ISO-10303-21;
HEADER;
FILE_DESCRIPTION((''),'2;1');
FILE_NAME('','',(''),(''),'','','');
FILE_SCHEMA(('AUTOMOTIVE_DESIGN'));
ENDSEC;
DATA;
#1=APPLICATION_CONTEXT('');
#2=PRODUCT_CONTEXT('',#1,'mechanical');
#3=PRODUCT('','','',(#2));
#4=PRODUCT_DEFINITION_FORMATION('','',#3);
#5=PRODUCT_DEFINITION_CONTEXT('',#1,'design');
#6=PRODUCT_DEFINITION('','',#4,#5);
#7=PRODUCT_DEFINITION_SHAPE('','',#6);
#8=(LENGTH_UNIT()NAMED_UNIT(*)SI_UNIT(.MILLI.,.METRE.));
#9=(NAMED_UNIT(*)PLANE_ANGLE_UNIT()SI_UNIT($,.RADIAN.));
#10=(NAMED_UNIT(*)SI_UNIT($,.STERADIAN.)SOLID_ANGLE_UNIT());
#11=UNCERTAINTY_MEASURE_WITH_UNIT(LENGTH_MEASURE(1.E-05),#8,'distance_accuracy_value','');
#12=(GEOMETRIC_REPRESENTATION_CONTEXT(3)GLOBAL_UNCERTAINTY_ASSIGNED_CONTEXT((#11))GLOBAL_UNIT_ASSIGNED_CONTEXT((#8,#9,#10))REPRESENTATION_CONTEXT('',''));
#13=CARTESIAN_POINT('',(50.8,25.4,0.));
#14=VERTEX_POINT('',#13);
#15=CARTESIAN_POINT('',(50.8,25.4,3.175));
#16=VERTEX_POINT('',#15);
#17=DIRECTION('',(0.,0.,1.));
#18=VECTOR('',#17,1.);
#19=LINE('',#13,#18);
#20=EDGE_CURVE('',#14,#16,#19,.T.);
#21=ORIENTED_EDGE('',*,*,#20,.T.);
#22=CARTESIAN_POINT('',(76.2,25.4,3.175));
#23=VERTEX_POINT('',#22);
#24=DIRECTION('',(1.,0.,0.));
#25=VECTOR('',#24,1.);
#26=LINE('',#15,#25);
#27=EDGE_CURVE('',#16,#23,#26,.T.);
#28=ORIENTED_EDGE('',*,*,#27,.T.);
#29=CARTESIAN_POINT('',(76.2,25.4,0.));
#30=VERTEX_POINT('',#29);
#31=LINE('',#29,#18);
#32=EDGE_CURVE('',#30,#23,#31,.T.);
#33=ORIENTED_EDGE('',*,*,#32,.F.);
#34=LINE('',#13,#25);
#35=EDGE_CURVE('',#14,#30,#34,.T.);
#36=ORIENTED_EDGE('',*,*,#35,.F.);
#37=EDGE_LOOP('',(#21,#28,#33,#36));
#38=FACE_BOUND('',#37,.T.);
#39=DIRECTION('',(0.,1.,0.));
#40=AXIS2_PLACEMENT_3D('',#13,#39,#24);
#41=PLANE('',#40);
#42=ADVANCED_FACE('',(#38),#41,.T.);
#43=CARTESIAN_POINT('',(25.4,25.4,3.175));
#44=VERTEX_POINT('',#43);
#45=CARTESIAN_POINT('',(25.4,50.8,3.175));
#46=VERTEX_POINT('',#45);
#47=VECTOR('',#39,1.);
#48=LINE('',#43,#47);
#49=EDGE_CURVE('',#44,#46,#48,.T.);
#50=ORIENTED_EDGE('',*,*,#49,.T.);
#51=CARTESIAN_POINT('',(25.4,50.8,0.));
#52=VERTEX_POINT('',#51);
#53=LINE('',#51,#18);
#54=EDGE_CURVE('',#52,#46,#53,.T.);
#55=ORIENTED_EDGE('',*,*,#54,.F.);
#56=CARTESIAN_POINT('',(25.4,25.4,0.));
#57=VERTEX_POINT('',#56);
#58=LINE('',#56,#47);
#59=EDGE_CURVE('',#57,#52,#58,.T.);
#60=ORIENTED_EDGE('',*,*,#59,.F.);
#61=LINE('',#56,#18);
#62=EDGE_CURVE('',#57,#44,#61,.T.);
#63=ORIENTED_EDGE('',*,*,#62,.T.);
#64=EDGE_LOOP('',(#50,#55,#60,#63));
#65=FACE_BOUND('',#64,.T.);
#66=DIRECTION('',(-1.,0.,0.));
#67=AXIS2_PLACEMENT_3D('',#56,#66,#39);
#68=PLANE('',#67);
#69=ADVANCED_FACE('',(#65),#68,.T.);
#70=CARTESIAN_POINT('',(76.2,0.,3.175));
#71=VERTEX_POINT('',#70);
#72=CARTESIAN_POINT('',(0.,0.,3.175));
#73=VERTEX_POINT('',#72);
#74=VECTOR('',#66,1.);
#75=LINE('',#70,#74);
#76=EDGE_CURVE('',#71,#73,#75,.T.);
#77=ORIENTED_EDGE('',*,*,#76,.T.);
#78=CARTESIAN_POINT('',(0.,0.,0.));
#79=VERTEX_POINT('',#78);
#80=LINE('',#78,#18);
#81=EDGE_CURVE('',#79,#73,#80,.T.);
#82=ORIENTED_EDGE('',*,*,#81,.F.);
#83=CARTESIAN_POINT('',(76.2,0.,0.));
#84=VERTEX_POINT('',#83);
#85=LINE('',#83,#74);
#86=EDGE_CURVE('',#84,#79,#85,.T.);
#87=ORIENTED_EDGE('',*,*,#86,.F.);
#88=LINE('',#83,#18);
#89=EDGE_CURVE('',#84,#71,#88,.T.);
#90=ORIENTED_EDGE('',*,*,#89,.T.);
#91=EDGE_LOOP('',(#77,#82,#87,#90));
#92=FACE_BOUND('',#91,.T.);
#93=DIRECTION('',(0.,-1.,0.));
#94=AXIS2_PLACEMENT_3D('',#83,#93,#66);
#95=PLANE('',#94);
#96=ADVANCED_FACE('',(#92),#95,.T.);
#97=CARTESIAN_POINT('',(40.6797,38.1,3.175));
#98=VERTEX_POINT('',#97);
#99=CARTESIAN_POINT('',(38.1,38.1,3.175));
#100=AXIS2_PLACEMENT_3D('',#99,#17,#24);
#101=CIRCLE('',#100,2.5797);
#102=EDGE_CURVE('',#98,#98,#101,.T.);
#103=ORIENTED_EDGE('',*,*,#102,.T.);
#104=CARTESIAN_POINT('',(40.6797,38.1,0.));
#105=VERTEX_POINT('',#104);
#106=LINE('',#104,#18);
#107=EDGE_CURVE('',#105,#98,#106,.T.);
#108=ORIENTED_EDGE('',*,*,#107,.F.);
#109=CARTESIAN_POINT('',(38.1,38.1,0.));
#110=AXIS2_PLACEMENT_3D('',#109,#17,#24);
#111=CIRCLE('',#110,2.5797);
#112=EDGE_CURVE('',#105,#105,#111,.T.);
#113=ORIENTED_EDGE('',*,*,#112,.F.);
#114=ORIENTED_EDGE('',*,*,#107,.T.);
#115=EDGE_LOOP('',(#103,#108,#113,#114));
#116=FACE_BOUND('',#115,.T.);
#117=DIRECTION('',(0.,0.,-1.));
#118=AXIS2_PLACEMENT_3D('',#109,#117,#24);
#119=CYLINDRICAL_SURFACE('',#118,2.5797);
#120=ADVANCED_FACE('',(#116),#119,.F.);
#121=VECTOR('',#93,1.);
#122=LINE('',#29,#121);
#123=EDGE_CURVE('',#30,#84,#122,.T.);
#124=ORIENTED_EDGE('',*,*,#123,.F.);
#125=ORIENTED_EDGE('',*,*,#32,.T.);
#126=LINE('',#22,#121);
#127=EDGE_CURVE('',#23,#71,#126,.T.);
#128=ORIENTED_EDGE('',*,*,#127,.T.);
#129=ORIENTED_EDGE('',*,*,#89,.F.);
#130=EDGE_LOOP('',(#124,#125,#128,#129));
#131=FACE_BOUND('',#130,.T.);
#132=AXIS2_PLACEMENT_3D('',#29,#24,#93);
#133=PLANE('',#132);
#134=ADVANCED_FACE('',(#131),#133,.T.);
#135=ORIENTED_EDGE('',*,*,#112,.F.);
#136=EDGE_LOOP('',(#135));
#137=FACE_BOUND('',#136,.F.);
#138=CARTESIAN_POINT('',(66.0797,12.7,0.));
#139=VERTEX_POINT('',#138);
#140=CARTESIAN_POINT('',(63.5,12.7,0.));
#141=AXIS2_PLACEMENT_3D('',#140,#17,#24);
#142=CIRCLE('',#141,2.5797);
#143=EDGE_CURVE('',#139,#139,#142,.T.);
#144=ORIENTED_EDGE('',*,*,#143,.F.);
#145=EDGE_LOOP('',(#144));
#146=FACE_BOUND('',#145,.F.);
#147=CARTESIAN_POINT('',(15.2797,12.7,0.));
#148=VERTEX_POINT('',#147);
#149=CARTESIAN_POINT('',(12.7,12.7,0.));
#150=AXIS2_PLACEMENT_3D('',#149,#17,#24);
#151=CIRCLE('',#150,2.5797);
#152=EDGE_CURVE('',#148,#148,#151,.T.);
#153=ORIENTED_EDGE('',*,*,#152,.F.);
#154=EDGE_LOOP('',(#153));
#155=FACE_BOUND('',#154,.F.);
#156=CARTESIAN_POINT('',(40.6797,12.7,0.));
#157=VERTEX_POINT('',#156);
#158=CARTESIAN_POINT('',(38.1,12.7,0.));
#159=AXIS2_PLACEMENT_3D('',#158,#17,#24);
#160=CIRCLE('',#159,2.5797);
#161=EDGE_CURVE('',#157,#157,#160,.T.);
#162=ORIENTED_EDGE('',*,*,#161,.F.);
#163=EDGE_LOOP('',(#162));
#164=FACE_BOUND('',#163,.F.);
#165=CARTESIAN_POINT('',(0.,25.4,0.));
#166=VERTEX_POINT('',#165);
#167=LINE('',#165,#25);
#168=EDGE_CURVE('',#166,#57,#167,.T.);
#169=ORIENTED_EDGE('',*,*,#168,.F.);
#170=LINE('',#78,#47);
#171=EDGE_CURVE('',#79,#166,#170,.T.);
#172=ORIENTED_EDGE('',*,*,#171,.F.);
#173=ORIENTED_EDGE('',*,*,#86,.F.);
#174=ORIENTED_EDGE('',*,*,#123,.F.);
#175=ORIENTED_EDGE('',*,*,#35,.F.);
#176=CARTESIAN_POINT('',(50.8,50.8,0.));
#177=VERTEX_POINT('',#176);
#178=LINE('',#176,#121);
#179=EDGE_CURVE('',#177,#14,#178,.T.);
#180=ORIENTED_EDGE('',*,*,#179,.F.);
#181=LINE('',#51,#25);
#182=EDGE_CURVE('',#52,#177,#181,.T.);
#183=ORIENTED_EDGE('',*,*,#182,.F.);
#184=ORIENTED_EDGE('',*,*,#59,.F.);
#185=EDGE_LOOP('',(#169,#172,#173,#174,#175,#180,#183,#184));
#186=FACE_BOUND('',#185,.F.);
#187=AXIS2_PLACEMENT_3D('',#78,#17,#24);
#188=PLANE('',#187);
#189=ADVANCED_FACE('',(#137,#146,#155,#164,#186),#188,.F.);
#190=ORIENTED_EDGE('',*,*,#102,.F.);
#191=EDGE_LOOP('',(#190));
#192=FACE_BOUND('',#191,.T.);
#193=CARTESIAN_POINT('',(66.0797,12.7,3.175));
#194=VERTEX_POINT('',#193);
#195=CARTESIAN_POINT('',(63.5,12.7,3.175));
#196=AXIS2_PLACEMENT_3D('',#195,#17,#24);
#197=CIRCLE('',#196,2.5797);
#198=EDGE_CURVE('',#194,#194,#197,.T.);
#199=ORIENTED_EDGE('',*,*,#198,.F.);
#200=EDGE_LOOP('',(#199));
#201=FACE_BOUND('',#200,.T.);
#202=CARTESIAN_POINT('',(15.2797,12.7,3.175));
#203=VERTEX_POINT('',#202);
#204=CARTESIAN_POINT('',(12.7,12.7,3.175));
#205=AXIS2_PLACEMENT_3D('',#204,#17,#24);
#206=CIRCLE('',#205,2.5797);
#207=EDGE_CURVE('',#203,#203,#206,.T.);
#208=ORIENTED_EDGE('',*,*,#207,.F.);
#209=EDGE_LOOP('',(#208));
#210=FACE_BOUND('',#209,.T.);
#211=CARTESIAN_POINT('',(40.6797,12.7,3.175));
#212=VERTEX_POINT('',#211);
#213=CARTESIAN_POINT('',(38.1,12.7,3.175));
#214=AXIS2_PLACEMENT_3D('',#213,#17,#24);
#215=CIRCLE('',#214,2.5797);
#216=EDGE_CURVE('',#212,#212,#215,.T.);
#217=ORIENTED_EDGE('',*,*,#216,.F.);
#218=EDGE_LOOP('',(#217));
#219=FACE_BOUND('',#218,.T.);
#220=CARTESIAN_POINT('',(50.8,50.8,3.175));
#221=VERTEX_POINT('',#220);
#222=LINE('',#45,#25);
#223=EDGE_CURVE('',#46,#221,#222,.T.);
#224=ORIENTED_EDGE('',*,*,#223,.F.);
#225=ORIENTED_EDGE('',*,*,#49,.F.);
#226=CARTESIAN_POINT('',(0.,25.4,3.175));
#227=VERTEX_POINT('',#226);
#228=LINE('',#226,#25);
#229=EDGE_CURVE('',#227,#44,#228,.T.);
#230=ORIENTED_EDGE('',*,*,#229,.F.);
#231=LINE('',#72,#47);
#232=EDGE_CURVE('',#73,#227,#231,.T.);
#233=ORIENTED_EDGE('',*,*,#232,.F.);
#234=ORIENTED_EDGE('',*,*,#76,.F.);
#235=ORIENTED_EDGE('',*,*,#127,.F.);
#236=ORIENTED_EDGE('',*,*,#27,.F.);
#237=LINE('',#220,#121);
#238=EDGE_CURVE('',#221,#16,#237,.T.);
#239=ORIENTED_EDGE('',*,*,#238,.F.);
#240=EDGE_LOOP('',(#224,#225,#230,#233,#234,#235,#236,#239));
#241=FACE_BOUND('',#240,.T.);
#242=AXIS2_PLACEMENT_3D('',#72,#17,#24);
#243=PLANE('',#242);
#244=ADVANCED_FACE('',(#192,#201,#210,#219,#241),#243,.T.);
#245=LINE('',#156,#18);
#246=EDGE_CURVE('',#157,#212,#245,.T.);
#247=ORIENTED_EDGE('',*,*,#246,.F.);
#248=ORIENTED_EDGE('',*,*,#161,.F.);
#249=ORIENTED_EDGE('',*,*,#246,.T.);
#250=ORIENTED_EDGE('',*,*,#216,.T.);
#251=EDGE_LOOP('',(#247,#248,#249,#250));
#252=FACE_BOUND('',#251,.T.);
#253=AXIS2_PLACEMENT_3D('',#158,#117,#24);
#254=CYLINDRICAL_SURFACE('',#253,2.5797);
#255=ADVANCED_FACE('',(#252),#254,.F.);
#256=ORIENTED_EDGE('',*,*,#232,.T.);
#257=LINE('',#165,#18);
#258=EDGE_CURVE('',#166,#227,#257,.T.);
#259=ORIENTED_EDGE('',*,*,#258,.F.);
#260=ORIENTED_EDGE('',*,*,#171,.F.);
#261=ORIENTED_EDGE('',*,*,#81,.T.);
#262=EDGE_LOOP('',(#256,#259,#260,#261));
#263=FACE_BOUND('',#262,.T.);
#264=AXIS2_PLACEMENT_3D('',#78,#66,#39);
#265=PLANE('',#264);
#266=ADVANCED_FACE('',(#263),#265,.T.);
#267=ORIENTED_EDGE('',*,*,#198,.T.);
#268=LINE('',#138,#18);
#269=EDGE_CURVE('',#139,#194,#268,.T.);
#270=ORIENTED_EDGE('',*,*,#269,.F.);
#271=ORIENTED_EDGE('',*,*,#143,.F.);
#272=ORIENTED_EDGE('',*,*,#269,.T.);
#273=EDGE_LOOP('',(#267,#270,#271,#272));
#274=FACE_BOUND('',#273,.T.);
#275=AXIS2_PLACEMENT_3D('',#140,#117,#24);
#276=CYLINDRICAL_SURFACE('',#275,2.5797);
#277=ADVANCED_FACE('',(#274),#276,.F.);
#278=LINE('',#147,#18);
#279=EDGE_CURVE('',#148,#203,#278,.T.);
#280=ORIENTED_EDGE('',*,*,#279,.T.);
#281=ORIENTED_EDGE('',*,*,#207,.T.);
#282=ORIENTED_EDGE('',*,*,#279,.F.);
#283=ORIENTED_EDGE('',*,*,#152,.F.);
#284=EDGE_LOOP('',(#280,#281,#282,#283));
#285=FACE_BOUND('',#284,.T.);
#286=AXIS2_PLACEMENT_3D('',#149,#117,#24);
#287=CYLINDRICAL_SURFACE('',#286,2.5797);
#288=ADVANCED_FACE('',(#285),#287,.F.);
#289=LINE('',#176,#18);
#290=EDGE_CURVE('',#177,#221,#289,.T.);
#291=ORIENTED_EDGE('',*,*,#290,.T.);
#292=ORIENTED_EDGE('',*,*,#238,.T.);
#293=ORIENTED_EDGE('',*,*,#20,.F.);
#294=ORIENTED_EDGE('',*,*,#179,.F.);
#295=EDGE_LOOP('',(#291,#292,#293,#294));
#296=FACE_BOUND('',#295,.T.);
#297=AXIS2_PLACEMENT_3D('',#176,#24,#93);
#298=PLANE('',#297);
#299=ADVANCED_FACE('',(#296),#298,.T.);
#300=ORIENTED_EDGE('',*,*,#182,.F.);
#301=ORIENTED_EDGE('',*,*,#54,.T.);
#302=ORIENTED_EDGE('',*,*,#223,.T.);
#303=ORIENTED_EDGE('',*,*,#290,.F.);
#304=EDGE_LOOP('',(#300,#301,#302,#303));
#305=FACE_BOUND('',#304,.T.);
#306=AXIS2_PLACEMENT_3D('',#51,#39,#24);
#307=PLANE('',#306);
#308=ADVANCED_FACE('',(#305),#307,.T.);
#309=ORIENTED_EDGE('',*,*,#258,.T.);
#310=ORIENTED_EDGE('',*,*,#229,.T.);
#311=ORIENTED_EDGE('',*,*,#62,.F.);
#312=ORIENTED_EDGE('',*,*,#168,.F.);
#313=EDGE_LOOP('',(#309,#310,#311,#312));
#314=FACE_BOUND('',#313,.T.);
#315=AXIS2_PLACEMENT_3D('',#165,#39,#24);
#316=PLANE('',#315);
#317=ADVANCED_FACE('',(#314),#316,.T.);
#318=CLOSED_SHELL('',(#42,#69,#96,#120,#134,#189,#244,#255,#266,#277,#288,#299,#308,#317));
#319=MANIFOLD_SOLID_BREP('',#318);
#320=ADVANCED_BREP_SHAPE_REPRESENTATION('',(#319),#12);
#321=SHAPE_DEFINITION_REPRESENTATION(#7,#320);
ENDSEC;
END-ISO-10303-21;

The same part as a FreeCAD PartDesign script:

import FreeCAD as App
import Part
import Sketcher
from FreeCAD import Vector
Q = App.Units.Quantity


def add_polygon(sketch, points):
    """Adds a closed chain of lines whose ends are joined by coincident constraints."""
    first, n = sketch.GeometryCount, len(points)
    for a, b in zip(points, points[1:] + points[:1]):
        sketch.addGeometry(Part.LineSegment(App.Vector(*a, 0), App.Vector(*b, 0)), False)
    for i in range(n):
        sketch.addConstraint(Sketcher.Constraint("Coincident", first + i, 2, first + (i + 1) % n, 1))

doc = App.newDocument("Part")
params = doc.addObject("Spreadsheet::Sheet", "Params")
for row, (alias, value) in enumerate([
    ("sketch1_width", "1 in"),
    ("sketch1_diameter", "0.203126 in"),
    ("pad1_length", "0.125 in"),
], start=1):
    params.set(f"A{row}", alias)
    params.set(f"B{row}", "=" + value)
    params.setAlias(f"B{row}", alias)

body = doc.addObject("PartDesign::Body", "Body")

# Sketch on XY plane
sketch1 = body.newObject("Sketcher::SketchObject", "Sketch")
sketch1.AttachmentSupport = (doc.getObject("XY_Plane"), [""])
sketch1.MapMode = "FlatFace"
add_polygon(sketch1, [(0, 25.4), (0, 0), (76.2, 0), (76.2, 25.4), (50.8, 25.4), (50.8, 50.8), (25.4, 50.8), (25.4, 25.4)])  # lines 0-7
sketch1.addGeometry(Part.Circle(Vector(12.7, 12.7, 0), Vector(0, 0, 1), 2.6), False)  # 8
sketch1.addGeometry(Part.Circle(Vector(38.1, 12.7, 0), Vector(0, 0, 1), 2.6), False)  # 9
sketch1.addGeometry(Part.Circle(Vector(63.5, 12.7, 0), Vector(0, 0, 1), 2.6), False)  # 10
sketch1.addGeometry(Part.Circle(Vector(38.1, 38.1, 0), Vector(0, 0, 1), 2.6), False)  # 11
sketch1.addConstraint(Sketcher.Constraint("Vertical", 0))
sketch1.addConstraint(Sketcher.Constraint("Horizontal", 1))
sketch1.addConstraint(Sketcher.Constraint("Vertical", 2))
sketch1.addConstraint(Sketcher.Constraint("Horizontal", 3))
sketch1.addConstraint(Sketcher.Constraint("Vertical", 4))
sketch1.addConstraint(Sketcher.Constraint("Horizontal", 5))
sketch1.addConstraint(Sketcher.Constraint("Vertical", 6))
sketch1.addConstraint(Sketcher.Constraint("Horizontal", 7))
sketch1.addConstraint(Sketcher.Constraint("Coincident", 0, 2, -1, 1))
sketch1.addConstraint(Sketcher.Constraint("Equal", 8, 9))
sketch1.addConstraint(Sketcher.Constraint("Equal", 9, 10))
sketch1.addConstraint(Sketcher.Constraint("Equal", 10, 11))
sketch1.addConstraint(Sketcher.Constraint("Horizontal", 8, 3, 9, 3))
sketch1.addConstraint(Sketcher.Constraint("Horizontal", 9, 3, 10, 3))
sketch1.addConstraint(Sketcher.Constraint("Horizontal", 3, 2, 6, 2))
sketch1.addConstraint(Sketcher.Constraint("Vertical", 9, 3, 11, 3))
sketch1.addConstraint(Sketcher.Constraint("Equal", 3, 5))
sketch1.addConstraint(Sketcher.Constraint("Equal", 5, 7))
sketch1.addConstraint(Sketcher.Constraint("Equal", 7, 0))
sketch1.addConstraint(Sketcher.Constraint("Equal", 2, 4))
sketch1.addConstraint(Sketcher.Constraint("DistanceX", 3, 2, 3, 1, Q("1 in")))
sketch1.addConstraint(Sketcher.Constraint("Diameter", 8, Q("0.203126 in")))
sketch1.addConstraint(Sketcher.Constraint("DistanceX", 8, 3, 9, 3, Q("1 in")))
sketch1.addConstraint(Sketcher.Constraint("DistanceX", 9, 3, 10, 3, Q("1 in")))
sketch1.addConstraint(Sketcher.Constraint("DistanceY", 9, 3, 11, 3, Q("1 in")))
sketch1.addConstraint(Sketcher.Constraint("DistanceX", -1, 1, 8, 3, Q("0.5 in")))
sketch1.addConstraint(Sketcher.Constraint("DistanceY", -1, 1, 8, 3, Q("0.5 in")))
sketch1.setExpression("Constraints[28]", "Params.sketch1_width")
sketch1.setExpression("Constraints[29]", "Params.sketch1_diameter")
pad1 = body.newObject("PartDesign::Pad", "Pad")
pad1.Profile = sketch1
pad1.setExpression("Length", "Params.pad1_length")

doc.recompute()
